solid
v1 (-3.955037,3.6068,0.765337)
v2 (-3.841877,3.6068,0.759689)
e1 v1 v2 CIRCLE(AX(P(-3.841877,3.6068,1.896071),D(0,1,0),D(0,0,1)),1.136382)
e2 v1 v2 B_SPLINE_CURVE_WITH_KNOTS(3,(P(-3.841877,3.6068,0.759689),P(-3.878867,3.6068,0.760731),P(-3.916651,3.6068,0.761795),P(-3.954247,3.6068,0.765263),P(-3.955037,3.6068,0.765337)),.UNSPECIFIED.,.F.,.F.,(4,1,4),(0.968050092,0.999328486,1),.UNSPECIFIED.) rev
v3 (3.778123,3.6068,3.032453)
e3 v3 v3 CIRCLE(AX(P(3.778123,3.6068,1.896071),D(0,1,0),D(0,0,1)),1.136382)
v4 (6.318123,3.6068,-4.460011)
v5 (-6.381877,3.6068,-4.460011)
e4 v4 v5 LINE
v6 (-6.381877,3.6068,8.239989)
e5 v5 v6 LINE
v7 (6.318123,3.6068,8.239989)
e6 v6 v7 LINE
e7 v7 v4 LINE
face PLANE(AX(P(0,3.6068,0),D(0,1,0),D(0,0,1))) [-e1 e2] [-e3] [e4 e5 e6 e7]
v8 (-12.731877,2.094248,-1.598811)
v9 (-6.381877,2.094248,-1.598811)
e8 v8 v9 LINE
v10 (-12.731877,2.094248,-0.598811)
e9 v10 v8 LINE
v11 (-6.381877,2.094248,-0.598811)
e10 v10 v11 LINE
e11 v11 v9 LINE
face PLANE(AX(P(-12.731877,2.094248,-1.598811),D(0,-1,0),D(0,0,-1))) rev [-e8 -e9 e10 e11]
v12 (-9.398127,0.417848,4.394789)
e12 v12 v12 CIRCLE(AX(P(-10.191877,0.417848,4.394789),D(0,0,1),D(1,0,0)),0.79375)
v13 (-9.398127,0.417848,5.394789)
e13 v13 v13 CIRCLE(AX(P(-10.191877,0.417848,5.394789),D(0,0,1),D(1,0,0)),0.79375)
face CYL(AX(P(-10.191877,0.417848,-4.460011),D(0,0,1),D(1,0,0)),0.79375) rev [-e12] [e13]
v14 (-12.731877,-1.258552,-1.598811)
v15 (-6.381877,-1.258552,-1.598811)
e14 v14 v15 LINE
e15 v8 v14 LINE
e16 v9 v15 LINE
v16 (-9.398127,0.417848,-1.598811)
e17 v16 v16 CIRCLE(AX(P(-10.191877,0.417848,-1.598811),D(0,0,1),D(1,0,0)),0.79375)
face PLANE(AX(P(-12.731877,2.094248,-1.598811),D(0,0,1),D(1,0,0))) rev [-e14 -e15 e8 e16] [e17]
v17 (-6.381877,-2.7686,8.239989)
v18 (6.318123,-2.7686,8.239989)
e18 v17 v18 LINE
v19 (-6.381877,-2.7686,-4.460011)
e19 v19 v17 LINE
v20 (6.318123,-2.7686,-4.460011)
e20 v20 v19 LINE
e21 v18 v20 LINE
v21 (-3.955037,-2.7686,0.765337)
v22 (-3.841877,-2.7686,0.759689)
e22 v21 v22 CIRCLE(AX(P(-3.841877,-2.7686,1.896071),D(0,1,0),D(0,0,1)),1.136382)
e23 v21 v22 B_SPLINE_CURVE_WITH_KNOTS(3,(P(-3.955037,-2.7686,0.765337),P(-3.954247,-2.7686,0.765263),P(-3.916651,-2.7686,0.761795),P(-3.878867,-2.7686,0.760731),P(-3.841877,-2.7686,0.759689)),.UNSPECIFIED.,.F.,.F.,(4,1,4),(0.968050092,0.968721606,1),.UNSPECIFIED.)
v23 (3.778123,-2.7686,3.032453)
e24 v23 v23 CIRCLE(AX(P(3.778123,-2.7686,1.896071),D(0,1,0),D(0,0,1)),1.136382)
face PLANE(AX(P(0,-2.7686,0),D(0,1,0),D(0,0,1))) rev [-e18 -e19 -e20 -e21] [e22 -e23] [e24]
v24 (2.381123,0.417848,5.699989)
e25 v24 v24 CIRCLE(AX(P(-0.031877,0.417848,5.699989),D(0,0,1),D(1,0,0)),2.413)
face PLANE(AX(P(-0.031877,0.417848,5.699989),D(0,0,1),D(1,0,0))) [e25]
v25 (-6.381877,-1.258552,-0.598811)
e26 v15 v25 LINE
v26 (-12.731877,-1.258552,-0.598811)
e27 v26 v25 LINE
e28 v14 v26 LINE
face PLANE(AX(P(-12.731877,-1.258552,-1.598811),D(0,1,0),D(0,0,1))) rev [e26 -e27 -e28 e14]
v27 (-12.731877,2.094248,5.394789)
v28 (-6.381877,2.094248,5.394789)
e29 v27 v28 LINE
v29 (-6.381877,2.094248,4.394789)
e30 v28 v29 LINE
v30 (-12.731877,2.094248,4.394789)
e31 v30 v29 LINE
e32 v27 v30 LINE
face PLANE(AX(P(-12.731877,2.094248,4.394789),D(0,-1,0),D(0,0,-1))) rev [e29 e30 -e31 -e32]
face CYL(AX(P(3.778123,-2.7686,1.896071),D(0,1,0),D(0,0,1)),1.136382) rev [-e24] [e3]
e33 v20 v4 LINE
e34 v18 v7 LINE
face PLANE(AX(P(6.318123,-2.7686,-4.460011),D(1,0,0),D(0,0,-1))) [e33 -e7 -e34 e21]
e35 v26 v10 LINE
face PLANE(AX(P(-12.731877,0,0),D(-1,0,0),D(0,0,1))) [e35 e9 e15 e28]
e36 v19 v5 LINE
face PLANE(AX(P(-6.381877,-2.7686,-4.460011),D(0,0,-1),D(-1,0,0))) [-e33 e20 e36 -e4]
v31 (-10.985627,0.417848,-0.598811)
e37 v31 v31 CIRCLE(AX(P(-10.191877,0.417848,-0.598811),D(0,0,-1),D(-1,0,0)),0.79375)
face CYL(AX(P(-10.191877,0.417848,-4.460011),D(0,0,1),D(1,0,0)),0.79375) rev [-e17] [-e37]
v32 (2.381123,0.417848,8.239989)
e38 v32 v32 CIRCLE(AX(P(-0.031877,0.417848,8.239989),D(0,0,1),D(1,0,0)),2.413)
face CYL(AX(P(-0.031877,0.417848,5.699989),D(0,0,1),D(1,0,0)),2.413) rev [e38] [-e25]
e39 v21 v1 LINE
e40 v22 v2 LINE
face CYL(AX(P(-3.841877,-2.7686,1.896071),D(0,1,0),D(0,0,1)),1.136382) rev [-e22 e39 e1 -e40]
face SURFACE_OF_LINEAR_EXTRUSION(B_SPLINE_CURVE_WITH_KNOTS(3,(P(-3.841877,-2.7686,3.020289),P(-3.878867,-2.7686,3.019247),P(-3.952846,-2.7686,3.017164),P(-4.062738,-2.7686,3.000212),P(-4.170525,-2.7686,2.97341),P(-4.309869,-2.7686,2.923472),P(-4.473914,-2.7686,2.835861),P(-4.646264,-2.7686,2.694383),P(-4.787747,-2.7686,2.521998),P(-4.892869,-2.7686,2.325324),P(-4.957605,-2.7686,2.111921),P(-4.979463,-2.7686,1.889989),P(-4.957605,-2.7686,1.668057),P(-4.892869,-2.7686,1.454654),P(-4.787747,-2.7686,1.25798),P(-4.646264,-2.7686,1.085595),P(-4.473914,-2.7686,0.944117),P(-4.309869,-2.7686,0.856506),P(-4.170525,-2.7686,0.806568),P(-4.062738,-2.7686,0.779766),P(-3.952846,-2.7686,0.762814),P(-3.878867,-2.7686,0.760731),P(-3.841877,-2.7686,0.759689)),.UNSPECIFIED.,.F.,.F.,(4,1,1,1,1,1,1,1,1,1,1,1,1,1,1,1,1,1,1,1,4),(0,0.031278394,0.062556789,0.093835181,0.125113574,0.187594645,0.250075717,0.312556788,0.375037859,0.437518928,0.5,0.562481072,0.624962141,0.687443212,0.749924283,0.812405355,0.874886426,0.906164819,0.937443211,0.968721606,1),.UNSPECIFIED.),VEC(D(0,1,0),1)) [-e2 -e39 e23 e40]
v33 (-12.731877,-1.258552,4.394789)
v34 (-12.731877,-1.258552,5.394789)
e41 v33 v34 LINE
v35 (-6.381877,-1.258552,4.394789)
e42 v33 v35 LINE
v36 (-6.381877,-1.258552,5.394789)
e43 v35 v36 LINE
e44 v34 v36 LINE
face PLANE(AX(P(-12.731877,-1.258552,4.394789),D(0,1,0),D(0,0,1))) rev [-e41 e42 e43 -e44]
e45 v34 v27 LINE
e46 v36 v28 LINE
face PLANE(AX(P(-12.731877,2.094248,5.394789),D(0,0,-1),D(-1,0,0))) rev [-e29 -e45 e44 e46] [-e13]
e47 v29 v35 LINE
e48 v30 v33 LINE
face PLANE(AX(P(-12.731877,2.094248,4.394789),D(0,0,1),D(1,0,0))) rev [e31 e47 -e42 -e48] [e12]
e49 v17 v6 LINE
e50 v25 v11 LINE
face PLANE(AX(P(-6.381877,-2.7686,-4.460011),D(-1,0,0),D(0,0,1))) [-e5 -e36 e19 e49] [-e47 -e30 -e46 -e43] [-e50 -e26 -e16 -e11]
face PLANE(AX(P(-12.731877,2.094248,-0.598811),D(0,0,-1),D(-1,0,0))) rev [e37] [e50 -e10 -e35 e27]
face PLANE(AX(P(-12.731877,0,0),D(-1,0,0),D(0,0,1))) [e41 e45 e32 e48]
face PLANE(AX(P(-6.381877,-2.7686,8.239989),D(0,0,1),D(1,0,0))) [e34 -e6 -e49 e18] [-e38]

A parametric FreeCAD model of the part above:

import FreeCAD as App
import Part
import Sketcher

V = App.Vector
Q = App.Units.Quantity

doc = App.newDocument("Part")
body = doc.addObject("PartDesign::Body", "Body")

sketch1 = body.newObject("Sketcher::SketchObject", "Sketch")
sketch1.AttachmentSupport = (doc.getObject("XZ_Plane"), [""])
sketch1.MapMode = "FlatFace"
sketch1.addGeometry([
    Part.LineSegment(V(-6, -4, 0), V(-6, 8, 0)),
    Part.LineSegment(V(-6, 8, 0), V(6, 8, 0)),
    Part.LineSegment(V(6, 8, 0), V(6, -4, 0)),
    Part.LineSegment(V(6, -4, 0), V(-6, -4, 0)),
], False)
sketch1.addConstraint([
    Sketcher.Constraint("Coincident", 0, 2, 1, 1),
    Sketcher.Constraint("Coincident", 1, 2, 2, 1),
    Sketcher.Constraint("Coincident", 2, 2, 3, 1),
    Sketcher.Constraint("Coincident", 3, 2, 0, 1),
    Sketcher.Constraint("Vertical", 0),
    Sketcher.Constraint("Horizontal", 1),
    Sketcher.Constraint("Vertical", 2),
    Sketcher.Constraint("Horizontal", 3),
    Sketcher.Constraint("Equal", 3, 0),
    Sketcher.Constraint("DistanceX", 1, 1, 1, 2, Q("0.5 in")),
    Sketcher.Constraint("DistanceY", -1, 1, 0, 2, 8.239989),
    Sketcher.Constraint("DistanceX", 0, 2, -1, 1, 6.381877),
])
pad1 = body.newObject("PartDesign::Pad", "Pad")
pad1.Profile = sketch1
pad1.Type = "TwoLengths"
pad1.Length = Q("0.142 in")
pad1.Length2 = Q("0.109 in")
pad1.Reversed = True

sketch2 = body.newObject("Sketcher::SketchObject", "Sketch001")
sketch2.AttachmentSupport = (doc.getObject("YZ_Plane"), [""])
sketch2.MapMode = "FlatFace"
sketch2.AttachmentOffset = App.Placement(V(0, 0, -6.381877), App.Rotation())
sketch2.addGeometry([
    Part.LineSegment(V(2.1, -1.6, 0), V(-1.3, -1.6, 0)),
    Part.LineSegment(V(-1.3, -1.6, 0), V(-1.3, -0.6, 0)),
    Part.LineSegment(V(-1.3, -0.6, 0), V(2.1, -0.6, 0)),
    Part.LineSegment(V(2.1, -0.6, 0), V(2.1, -1.6, 0)),
    Part.LineSegment(V(2.1, 4.4, 0), V(-1.3, 4.4, 0)),
    Part.LineSegment(V(-1.3, 4.4, 0), V(-1.3, 5.4, 0)),
    Part.LineSegment(V(-1.3, 5.4, 0), V(2.1, 5.4, 0)),
    Part.LineSegment(V(2.1, 5.4, 0), V(2.1, 4.4, 0)),
], False)
sketch2.addConstraint([
    Sketcher.Constraint("Coincident", 0, 2, 1, 1),
    Sketcher.Constraint("Coincident", 1, 2, 2, 1),
    Sketcher.Constraint("Coincident", 2, 2, 3, 1),
    Sketcher.Constraint("Coincident", 3, 2, 0, 1),
    Sketcher.Constraint("Coincident", 4, 2, 5, 1),
    Sketcher.Constraint("Coincident", 5, 2, 6, 1),
    Sketcher.Constraint("Coincident", 6, 2, 7, 1),
    Sketcher.Constraint("Coincident", 7, 2, 4, 1),
    Sketcher.Constraint("Horizontal", 0),
    Sketcher.Constraint("Vertical", 1),
    Sketcher.Constraint("Horizontal", 2),
    Sketcher.Constraint("Vertical", 3),
    Sketcher.Constraint("Horizontal", 4),
    Sketcher.Constraint("Vertical", 5),
    Sketcher.Constraint("Horizontal", 6),
    Sketcher.Constraint("Vertical", 7),
    Sketcher.Constraint("Vertical", 1, 2, 4, 2),
    Sketcher.Constraint("Vertical", 3, 2, 6, 2),
    Sketcher.Constraint("Equal", 3, 5),
    Sketcher.Constraint("DistanceX", 0, 2, 0, 1, Q("0.132 in")),
    Sketcher.Constraint("DistanceY", 1, 1, 1, 2, 1.0),
    Sketcher.Constraint("DistanceY", 1, 2, 4, 2, 4.9936),
    Sketcher.Constraint("DistanceX", 0, 2, -1, 1, 1.258552),
    Sketcher.Constraint("DistanceY", 0, 2, -1, 1, 1.598811),
])
pad2 = body.newObject("PartDesign::Pad", "Pad001")
pad2.Profile = sketch2
pad2.Length = Q("0.25 in")
pad2.Reversed = True

sketch3 = body.newObject("Sketcher::SketchObject", "Sketch002")
sketch3.AttachmentSupport = (doc.getObject("XY_Plane"), [""])
sketch3.MapMode = "FlatFace"
sketch3.AttachmentOffset = App.Placement(V(0, 0, 5.394789), App.Rotation())
sketch3.addGeometry(Part.Circle(V(-10.2, 0.4, 0), V(0, 0, 1), 0.8), False)
sketch3.addConstraint([
    Sketcher.Constraint("Diameter", 0, Q("0.0625 in")),
    Sketcher.Constraint("DistanceY", -1, 1, 0, 3, 0.417848),
    Sketcher.Constraint("DistanceX", 0, 3, -1, 1, 10.191877),
])
pocket1 = body.newObject("PartDesign::Pocket", "Pocket")
pocket1.Profile = sketch3
pocket1.Type = "ThroughAll"

sketch4 = body.newObject("Sketcher::SketchObject", "Sketch003")
sketch4.AttachmentSupport = (doc.getObject("XY_Plane"), [""])
sketch4.MapMode = "FlatFace"
sketch4.AttachmentOffset = App.Placement(V(0, 0, 8.239989), App.Rotation())
sketch4.addGeometry(Part.Circle(V(0, 0.4, 0), V(0, 0, 1), 2.4), False)
sketch4.addConstraint([
    Sketcher.Constraint("Diameter", 0, Q("0.19 in")),
    Sketcher.Constraint("DistanceY", -1, 1, 0, 3, 0.417848),
    Sketcher.Constraint("DistanceX", 0, 3, -1, 1, 0.031877),
])
pocket2 = body.newObject("PartDesign::Pocket", "Pocket001")
pocket2.Profile = sketch4
pocket2.Length = Q("0.1 in")

sketch5 = body.newObject("Sketcher::SketchObject", "Sketch004")
sketch5.AttachmentSupport = (doc.getObject("XZ_Plane"), [""])
sketch5.MapMode = "FlatFace"
sketch5.AttachmentOffset = App.Placement(V(0, 0, -0.142 * 25.4), App.Rotation())
sketch5.addGeometry([
    Part.Circle(V(-3.8, 1.9, 0), V(0, 0, 1), 1.1),
    Part.Circle(V(3.8, 1.9, 0), V(0, 0, 1), 1.1),
], False)
sketch5.addConstraint([
    Sketcher.Constraint("Equal", 0, 1),
    Sketcher.Constraint("Horizontal", 0, 3, 1, 3),
    Sketcher.Constraint("DistanceX", 0, 3, 1, 3, Q("0.3 in")),
    Sketcher.Constraint("Diameter", 0, 2.272764),
    Sketcher.Constraint("DistanceY", -1, 1, 0, 3, 1.896071),
    Sketcher.Constraint("DistanceX", 0, 3, -1, 1, 3.841877),
])
pocket3 = body.newObject("PartDesign::Pocket", "Pocket002")
pocket3.Profile = sketch5
pocket3.Type = "ThroughAll"
pocket3.Reversed = True

doc.recompute()
